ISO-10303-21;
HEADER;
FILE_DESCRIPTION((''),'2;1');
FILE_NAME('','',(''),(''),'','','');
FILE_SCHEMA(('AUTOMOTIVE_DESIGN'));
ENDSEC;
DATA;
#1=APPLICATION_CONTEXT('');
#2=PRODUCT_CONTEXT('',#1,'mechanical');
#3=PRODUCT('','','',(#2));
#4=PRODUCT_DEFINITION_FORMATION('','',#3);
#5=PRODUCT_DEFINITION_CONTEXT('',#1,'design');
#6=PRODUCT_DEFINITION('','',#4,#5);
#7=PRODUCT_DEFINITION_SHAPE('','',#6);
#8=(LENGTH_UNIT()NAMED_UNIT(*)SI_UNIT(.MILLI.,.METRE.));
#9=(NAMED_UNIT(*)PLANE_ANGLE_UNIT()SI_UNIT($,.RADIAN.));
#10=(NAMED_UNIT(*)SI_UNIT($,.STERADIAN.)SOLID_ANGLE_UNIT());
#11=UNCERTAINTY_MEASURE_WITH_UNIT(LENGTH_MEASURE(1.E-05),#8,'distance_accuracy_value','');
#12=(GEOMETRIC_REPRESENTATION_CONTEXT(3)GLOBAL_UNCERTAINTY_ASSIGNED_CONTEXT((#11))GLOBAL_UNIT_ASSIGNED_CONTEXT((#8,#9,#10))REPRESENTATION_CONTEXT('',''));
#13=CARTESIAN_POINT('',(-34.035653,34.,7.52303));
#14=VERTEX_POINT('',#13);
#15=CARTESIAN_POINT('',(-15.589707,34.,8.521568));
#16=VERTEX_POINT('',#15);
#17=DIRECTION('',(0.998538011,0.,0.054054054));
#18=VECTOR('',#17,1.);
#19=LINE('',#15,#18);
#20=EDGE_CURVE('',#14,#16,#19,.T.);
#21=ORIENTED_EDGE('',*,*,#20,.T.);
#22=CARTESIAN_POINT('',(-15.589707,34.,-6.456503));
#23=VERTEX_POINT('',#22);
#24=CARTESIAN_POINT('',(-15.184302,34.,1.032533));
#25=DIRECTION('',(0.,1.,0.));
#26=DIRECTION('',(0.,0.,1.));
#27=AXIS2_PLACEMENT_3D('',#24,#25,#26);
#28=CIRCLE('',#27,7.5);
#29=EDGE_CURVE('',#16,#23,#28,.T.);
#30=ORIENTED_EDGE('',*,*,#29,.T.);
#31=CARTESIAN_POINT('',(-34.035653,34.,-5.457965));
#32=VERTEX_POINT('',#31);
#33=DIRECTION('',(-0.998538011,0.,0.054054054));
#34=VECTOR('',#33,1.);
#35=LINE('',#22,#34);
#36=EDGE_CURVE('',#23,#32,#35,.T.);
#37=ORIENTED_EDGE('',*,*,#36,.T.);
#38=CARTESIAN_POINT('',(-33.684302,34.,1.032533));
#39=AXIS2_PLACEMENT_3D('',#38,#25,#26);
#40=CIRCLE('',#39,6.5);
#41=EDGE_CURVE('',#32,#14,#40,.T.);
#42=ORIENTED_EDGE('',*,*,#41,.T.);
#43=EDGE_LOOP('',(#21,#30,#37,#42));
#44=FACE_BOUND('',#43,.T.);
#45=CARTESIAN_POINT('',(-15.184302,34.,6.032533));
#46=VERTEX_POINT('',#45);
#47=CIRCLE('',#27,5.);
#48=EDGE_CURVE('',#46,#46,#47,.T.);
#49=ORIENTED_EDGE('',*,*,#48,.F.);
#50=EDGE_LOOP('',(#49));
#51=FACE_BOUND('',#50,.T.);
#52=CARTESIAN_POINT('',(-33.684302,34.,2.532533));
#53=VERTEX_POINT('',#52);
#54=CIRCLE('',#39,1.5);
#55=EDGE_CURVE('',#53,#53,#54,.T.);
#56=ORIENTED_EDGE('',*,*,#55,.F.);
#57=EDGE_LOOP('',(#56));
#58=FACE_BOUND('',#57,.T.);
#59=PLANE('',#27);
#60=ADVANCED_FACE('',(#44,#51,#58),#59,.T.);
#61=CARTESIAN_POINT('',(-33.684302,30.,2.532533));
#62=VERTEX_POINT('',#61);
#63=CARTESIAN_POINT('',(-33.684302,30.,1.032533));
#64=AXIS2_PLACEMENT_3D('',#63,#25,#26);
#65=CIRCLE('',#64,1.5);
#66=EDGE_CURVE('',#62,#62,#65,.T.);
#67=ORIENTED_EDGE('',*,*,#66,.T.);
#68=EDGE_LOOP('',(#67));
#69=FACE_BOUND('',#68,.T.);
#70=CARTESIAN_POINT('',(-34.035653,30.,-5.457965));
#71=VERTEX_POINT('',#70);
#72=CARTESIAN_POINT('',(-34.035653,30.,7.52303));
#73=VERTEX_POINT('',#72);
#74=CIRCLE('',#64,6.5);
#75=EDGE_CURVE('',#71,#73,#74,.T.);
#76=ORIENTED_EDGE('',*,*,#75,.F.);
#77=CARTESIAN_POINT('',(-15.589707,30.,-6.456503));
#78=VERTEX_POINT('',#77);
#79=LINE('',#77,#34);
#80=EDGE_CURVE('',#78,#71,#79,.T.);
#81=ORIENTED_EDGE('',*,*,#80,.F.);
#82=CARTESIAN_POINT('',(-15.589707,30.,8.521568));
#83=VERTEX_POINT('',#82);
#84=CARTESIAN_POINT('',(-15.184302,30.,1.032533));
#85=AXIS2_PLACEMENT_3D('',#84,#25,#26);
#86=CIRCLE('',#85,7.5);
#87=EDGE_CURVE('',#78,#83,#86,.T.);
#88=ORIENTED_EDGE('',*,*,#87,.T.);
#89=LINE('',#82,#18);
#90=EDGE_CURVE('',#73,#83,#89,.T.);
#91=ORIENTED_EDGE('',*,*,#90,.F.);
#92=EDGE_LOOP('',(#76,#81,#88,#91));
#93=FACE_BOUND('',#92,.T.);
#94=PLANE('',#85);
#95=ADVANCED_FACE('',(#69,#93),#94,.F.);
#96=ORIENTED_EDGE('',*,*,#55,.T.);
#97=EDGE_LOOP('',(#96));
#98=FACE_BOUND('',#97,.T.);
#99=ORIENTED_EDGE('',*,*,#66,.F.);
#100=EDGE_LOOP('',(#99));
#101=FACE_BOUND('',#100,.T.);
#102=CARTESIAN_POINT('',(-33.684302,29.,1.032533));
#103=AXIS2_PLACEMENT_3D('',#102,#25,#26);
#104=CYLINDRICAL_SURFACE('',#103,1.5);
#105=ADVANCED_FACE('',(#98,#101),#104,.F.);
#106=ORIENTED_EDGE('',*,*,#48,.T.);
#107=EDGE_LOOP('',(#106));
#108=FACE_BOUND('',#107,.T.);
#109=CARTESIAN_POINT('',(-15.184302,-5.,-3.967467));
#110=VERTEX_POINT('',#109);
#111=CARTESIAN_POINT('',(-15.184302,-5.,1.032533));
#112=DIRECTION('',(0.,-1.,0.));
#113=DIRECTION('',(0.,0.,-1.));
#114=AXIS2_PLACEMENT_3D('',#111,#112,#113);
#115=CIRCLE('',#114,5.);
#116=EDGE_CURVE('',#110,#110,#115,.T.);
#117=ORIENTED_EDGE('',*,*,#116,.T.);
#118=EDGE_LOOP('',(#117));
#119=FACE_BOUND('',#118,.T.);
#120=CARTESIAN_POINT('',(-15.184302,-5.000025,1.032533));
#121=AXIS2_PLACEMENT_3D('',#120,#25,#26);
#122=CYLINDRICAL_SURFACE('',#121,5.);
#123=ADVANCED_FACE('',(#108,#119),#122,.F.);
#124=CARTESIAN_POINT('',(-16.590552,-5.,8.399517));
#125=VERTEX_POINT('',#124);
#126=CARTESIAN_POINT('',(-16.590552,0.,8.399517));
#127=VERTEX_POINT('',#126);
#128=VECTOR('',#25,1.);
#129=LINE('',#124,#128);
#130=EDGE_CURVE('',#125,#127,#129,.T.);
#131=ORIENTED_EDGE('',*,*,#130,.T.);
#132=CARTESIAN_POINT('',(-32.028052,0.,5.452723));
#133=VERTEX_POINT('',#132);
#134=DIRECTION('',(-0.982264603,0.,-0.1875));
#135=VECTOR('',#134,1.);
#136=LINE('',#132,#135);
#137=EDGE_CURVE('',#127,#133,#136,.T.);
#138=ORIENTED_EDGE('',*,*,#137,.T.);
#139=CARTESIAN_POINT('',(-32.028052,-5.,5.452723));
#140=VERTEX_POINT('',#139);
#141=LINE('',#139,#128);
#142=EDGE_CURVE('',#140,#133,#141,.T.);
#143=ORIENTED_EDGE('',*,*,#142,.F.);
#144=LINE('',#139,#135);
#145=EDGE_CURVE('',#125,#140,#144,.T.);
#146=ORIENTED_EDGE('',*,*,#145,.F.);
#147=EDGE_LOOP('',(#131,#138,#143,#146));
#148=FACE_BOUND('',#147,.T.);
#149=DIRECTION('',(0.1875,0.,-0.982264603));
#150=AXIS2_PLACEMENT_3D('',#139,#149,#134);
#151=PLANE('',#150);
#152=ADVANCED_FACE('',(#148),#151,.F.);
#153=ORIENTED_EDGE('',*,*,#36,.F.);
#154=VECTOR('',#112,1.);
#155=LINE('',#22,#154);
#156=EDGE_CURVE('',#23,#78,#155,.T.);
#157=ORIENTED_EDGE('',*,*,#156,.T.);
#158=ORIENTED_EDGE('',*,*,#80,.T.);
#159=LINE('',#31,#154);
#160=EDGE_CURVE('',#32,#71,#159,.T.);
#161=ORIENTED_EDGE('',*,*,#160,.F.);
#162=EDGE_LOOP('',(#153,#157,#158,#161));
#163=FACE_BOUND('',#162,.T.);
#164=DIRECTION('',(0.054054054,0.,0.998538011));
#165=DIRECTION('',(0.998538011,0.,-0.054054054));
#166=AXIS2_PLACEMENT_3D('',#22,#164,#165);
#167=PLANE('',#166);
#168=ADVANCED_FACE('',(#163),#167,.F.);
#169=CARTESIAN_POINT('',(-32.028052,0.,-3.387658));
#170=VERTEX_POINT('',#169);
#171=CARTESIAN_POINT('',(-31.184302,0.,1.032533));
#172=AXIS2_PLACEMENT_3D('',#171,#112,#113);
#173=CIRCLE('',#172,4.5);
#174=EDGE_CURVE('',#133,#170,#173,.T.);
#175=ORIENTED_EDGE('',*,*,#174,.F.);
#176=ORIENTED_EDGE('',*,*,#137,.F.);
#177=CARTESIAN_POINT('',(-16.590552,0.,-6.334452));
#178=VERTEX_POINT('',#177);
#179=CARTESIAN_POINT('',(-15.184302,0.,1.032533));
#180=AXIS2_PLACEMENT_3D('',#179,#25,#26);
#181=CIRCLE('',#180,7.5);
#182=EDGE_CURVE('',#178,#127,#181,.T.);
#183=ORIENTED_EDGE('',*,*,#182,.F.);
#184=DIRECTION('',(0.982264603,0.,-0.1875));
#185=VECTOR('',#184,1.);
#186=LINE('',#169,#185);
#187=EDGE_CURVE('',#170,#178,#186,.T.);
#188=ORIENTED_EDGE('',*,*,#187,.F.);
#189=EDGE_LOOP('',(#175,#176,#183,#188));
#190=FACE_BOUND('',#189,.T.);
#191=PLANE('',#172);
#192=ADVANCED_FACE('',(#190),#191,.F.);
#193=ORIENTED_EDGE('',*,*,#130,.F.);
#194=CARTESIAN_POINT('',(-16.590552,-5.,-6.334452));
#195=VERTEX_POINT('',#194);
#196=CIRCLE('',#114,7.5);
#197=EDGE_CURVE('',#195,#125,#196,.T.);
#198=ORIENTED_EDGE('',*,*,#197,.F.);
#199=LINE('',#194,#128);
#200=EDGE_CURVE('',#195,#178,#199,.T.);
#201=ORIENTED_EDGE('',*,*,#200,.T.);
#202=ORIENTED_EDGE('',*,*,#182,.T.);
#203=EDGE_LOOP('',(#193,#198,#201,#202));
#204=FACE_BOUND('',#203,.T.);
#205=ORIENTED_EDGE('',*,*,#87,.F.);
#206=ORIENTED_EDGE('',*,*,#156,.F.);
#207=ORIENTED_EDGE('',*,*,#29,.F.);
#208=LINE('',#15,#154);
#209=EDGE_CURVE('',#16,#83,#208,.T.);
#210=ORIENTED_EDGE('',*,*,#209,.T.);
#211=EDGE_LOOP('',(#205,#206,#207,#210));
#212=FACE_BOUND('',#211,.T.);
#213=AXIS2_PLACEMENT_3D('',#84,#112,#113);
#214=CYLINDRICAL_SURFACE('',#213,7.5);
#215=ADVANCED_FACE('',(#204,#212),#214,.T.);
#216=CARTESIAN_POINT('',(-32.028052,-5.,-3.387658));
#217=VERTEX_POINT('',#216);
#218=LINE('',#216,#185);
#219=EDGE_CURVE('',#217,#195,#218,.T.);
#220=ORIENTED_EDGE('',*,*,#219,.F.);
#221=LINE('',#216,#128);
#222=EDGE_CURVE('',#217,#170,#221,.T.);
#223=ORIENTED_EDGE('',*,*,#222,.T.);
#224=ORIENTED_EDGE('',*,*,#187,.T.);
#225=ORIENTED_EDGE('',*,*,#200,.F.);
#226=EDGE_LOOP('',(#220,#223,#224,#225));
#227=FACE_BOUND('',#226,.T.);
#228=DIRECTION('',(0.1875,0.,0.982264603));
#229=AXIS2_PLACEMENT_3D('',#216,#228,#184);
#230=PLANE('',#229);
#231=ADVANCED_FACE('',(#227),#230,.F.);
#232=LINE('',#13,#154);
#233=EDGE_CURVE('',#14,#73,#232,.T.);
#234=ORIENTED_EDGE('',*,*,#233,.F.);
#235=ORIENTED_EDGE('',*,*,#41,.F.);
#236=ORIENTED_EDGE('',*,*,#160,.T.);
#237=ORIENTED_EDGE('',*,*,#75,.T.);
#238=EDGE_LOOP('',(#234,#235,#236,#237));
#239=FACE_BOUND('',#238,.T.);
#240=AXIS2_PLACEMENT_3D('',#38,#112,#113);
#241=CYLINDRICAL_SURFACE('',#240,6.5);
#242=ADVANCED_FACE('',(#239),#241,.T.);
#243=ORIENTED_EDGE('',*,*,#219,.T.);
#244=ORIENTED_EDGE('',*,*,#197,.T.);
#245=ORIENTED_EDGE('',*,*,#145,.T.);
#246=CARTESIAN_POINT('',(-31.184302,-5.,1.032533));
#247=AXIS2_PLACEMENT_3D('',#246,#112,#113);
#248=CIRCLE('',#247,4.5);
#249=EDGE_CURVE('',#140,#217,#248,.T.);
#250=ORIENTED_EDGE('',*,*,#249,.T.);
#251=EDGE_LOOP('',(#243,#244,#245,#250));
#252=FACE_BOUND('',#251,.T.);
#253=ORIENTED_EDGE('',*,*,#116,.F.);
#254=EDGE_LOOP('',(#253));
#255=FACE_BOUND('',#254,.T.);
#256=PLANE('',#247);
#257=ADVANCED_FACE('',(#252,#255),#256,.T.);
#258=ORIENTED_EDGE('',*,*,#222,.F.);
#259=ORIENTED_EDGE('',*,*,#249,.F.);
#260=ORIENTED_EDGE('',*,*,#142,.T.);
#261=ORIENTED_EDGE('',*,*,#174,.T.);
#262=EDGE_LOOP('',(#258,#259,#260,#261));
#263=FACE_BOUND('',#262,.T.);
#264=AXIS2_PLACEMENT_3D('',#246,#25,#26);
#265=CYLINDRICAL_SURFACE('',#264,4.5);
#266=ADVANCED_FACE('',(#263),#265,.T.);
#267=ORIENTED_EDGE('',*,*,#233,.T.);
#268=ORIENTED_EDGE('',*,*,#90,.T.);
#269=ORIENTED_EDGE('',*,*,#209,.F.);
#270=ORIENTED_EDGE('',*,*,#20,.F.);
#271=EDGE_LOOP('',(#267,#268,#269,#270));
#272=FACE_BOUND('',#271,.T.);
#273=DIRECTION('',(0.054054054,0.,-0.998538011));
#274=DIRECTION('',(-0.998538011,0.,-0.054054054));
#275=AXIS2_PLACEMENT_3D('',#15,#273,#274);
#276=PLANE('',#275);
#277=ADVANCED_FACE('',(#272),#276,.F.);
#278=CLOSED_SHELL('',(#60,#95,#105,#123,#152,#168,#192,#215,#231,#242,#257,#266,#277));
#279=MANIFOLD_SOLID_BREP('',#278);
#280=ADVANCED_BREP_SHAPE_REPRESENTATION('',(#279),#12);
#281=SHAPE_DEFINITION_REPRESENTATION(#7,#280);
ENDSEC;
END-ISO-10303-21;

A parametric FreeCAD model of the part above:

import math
import FreeCAD as App
import Part
import Sketcher

V = App.Vector
Q = App.Units.Quantity

doc = App.newDocument("Part")
params = doc.addObject("Spreadsheet::Sheet", "Params")
for row, (alias, value) in enumerate([
    ("sketch1_diameter", "15 mm"),
    ("pad1_length", "30 mm"),
    ("sketch2_radius", "7.5 mm"),
    ("sketch2_radius2", "6.5 mm"),
    ("pad2_length", "4 mm"),
    ("sketch3_radius", "4.5 mm"),
    ("sketch3_radius2", "7.5 mm"),
    ("pad3_length", "5 mm"),
    ("sketch4_diameter", "3 mm"),
    ("pocket1_length", "5 mm"),
    ("sketch5_diameter", "10 mm"),
], start=1):
    params.set(f"A{row}", alias)
    params.set(f"B{row}", "=" + value)
    params.setAlias(f"B{row}", alias)

body = doc.addObject("PartDesign::Body", "Body")

# Sketch on XZ plane
sketch1 = body.newObject("Sketcher::SketchObject", "Sketch")
sketch1.AttachmentSupport = (doc.getObject("XZ_Plane"), [""])
sketch1.MapMode = "FlatFace"
sketch1.addGeometry(Part.Circle(V(-15, 1, 0), V(0, 0, 1), 8), False)
sketch1.addConstraint([
    Sketcher.Constraint("Diameter", 0, Q("15 mm")),
    Sketcher.Constraint("DistanceX", 0, 3, -1, 1, Q("15.184302 mm")),
    Sketcher.Constraint("DistanceY", -1, 1, 0, 3, Q("1.032533 mm")),
])
sketch1.setExpression("Constraints[0]", "Params.sketch1_diameter")
pad1 = body.newObject("PartDesign::Pad", "Pad")
pad1.Profile = sketch1
pad1.setExpression("Length", "Params.pad1_length")
pad1.Reversed = True

# Sketch on XZ plane
sketch2 = body.newObject("Sketcher::SketchObject", "Sketch001")
sketch2.AttachmentSupport = (doc.getObject("XZ_Plane"), [""])
sketch2.MapMode = "FlatFace"
sketch2.AttachmentOffset = App.Placement(V(0, 0, -30), App.Rotation())
sketch2.addGeometry([
    Part.LineSegment(V(-34, 8, 0), V(-16, 9, 0)),
    Part.ArcOfCircle(Part.Circle(V(-15, 1, 0), V(0, 0, 1), 8), math.radians(-93), math.radians(93)),
    Part.LineSegment(V(-16, -6, 0), V(-34, -5, 0)),
    Part.ArcOfCircle(Part.Circle(V(-34, 1, 0), V(0, 0, 1), 6), math.radians(93), math.radians(267)),
], False)
sketch2.addConstraint([
    Sketcher.Constraint("Tangent", 0, 2, 1, 2),
    Sketcher.Constraint("Tangent", 1, 1, 2, 1),
    Sketcher.Constraint("Tangent", 2, 2, 3, 2),
    Sketcher.Constraint("Tangent", 3, 1, 0, 1),
    Sketcher.Constraint("Horizontal", 1, 3, 3, 3),
    Sketcher.Constraint("Radius", 1, Q("7.5 mm")),
    Sketcher.Constraint("Radius", 3, Q("6.5 mm")),
    Sketcher.Constraint("DistanceX", 3, 3, 1, 3, Q("18.5 mm")),
    Sketcher.Constraint("DistanceX", 1, 3, -1, 1, Q("15.184302 mm")),
    Sketcher.Constraint("DistanceY", -1, 1, 3, 1, Q("7.52303 mm")),
])
sketch2.setExpression("Constraints[5]", "Params.sketch2_radius")
sketch2.setExpression("Constraints[6]", "Params.sketch2_radius2")
pad2 = body.newObject("PartDesign::Pad", "Pad001")
pad2.Profile = sketch2
pad2.setExpression("Length", "Params.pad2_length")
pad2.Reversed = True

# Sketch on XZ plane
sketch3 = body.newObject("Sketcher::SketchObject", "Sketch002")
sketch3.AttachmentSupport = (doc.getObject("XZ_Plane"), [""])
sketch3.MapMode = "FlatFace"
sketch3.addGeometry([
    Part.LineSegment(V(-16.6, 8.4, 0), V(-32, 5.5, 0)),
    Part.ArcOfCircle(Part.Circle(V(-31.2, 1, 0), V(0, 0, 1), 4.5), math.radians(101), math.radians(259)),
    Part.LineSegment(V(-32, -3.4, 0), V(-16.6, -6.3, 0)),
    Part.ArcOfCircle(Part.Circle(V(-15.2, 1, 0), V(0, 0, 1), 7.5), math.radians(-101), math.radians(101)),
], False)
sketch3.addConstraint([
    Sketcher.Constraint("Tangent", 0, 2, 1, 1),
    Sketcher.Constraint("Tangent", 1, 2, 2, 1),
    Sketcher.Constraint("Tangent", 2, 2, 3, 1),
    Sketcher.Constraint("Tangent", 3, 2, 0, 1),
    Sketcher.Constraint("Horizontal", 1, 3, 3, 3),
    Sketcher.Constraint("Radius", 1, Q("4.5 mm")),
    Sketcher.Constraint("Radius", 3, Q("7.5 mm")),
    Sketcher.Constraint("DistanceX", 1, 3, 3, 3, Q("16 mm")),
    Sketcher.Constraint("DistanceX", 1, 3, -1, 1, Q("31.184302 mm")),
    Sketcher.Constraint("DistanceY", 1, 2, -1, 1, Q("3.387658 mm")),
])
sketch3.setExpression("Constraints[5]", "Params.sketch3_radius")
sketch3.setExpression("Constraints[6]", "Params.sketch3_radius2")
pad3 = body.newObject("PartDesign::Pad", "Pad002")
pad3.Profile = sketch3
pad3.setExpression("Length", "Params.pad3_length")

# Sketch on XZ plane
sketch4 = body.newObject("Sketcher::SketchObject", "Sketch003")
sketch4.AttachmentSupport = (doc.getObject("XZ_Plane"), [""])
sketch4.MapMode = "FlatFace"
sketch4.AttachmentOffset = App.Placement(V(0, 0, -34), App.Rotation())
sketch4.addGeometry(Part.Circle(V(-33.7, 1, 0), V(0, 0, 1), 1.5), False)
sketch4.addConstraint([
    Sketcher.Constraint("Diameter", 0, Q("3 mm")),
    Sketcher.Constraint("DistanceX", 0, 3, -1, 1, Q("33.684302 mm")),
    Sketcher.Constraint("DistanceY", -1, 1, 0, 3, Q("1.032533 mm")),
])
sketch4.setExpression("Constraints[0]", "Params.sketch4_diameter")
pocket1 = body.newObject("PartDesign::Pocket", "Pocket")
pocket1.Profile = sketch4
pocket1.setExpression("Length", "Params.pocket1_length")
pocket1.Reversed = True

# Sketch on XZ plane
sketch5 = body.newObject("Sketcher::SketchObject", "Sketch004")
sketch5.AttachmentSupport = (doc.getObject("XZ_Plane"), [""])
sketch5.MapMode = "FlatFace"
sketch5.AttachmentOffset = App.Placement(V(0, 0, -34), App.Rotation())
sketch5.addGeometry(Part.Circle(V(-15, 1, 0), V(0, 0, 1), 5), False)
sketch5.addConstraint([
    Sketcher.Constraint("Diameter", 0, Q("10 mm")),
    Sketcher.Constraint("DistanceX", 0, 3, -1, 1, Q("15.184302 mm")),
    Sketcher.Constraint("DistanceY", -1, 1, 0, 3, Q("1.032533 mm")),
])
sketch5.setExpression("Constraints[0]", "Params.sketch5_diameter")
pocket2 = body.newObject("PartDesign::Pocket", "Pocket001")
pocket2.Profile = sketch5
pocket2.Type = "ThroughAll"
pocket2.Reversed = True

doc.recompute()
